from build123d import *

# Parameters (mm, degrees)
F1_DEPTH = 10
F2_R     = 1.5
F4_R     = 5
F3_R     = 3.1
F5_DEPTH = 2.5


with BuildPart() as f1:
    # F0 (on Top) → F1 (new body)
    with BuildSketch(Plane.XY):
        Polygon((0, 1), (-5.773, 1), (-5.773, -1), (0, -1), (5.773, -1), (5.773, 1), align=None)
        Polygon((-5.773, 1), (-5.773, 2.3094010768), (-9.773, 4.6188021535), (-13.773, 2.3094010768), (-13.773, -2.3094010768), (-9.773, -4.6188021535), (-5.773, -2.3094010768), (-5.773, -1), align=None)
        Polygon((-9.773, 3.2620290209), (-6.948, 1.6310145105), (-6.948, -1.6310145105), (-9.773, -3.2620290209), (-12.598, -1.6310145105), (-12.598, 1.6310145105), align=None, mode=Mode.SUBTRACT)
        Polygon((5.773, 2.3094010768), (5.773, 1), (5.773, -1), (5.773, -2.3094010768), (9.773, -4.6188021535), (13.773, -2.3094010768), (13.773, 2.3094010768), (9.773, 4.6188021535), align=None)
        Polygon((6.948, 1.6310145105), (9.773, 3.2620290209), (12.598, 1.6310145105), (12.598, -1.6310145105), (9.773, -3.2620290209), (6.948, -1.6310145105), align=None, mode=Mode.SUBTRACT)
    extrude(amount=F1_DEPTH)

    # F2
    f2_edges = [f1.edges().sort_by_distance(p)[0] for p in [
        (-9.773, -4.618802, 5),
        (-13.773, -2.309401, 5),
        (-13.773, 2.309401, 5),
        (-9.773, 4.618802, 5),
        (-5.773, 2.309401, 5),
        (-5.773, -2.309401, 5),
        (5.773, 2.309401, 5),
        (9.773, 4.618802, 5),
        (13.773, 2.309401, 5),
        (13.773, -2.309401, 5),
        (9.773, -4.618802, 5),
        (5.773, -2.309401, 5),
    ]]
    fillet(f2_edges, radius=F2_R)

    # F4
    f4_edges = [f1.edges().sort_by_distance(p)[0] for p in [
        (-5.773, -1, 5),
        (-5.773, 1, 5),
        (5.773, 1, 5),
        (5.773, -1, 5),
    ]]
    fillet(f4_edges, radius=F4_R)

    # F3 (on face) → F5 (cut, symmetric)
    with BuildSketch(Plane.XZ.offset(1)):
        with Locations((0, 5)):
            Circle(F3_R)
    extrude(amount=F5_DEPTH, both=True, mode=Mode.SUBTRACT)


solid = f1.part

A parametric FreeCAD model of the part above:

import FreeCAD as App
import Part
import Sketcher
Q = App.Units.Quantity


def edges_at(feature, points):
    """Names of the edges that pass closest to the given points."""
    edges = feature.Shape.Edges
    near = lambda p: min(range(len(edges)), key=lambda i: edges[i].distToShape(Part.Vertex(*p))[0])
    return sorted({f"Edge{near(p) + 1}" for p in points})

doc = App.newDocument("Part")
body = doc.addObject("PartDesign::Body", "Body")

# Sketch on XY plane
sketch1 = body.newObject("Sketcher::SketchObject", "Sketch")
sketch1.AttachmentSupport = (doc.getObject("XY_Plane"), [""])
sketch1.MapMode = "FlatFace"
sketch1.addGeometry(Part.LineSegment(App.Vector(-5.8, -1, 0), App.Vector(5.8, -1, 0)), False)
sketch1.addGeometry(Part.LineSegment(App.Vector(5.8, -1, 0), App.Vector(5.8, -2.3, 0)), False)
sketch1.addGeometry(Part.LineSegment(App.Vector(5.8, -2.3, 0), App.Vector(9.8, -4.6, 0)), False)
sketch1.addGeometry(Part.LineSegment(App.Vector(9.8, -4.6, 0), App.Vector(13.8, -2.3, 0)), False)
sketch1.addGeometry(Part.LineSegment(App.Vector(13.8, -2.3, 0), App.Vector(13.8, 2.3, 0)), False)
sketch1.addGeometry(Part.LineSegment(App.Vector(13.8, 2.3, 0), App.Vector(9.8, 4.6, 0)), False)
sketch1.addGeometry(Part.LineSegment(App.Vector(9.8, 4.6, 0), App.Vector(5.8, 2.3, 0)), False)
sketch1.addGeometry(Part.LineSegment(App.Vector(5.8, 2.3, 0), App.Vector(5.8, 1, 0)), False)
sketch1.addGeometry(Part.LineSegment(App.Vector(5.8, 1, 0), App.Vector(-5.8, 1, 0)), False)
sketch1.addGeometry(Part.LineSegment(App.Vector(-5.8, 1, 0), App.Vector(-5.8, 2.3, 0)), False)
sketch1.addGeometry(Part.LineSegment(App.Vector(-5.8, 2.3, 0), App.Vector(-9.8, 4.6, 0)), False)
sketch1.addGeometry(Part.LineSegment(App.Vector(-9.8, 4.6, 0), App.Vector(-13.8, 2.3, 0)), False)
sketch1.addGeometry(Part.LineSegment(App.Vector(-13.8, 2.3, 0), App.Vector(-13.8, -2.3, 0)), False)
sketch1.addGeometry(Part.LineSegment(App.Vector(-13.8, -2.3, 0), App.Vector(-9.8, -4.6, 0)), False)
sketch1.addGeometry(Part.LineSegment(App.Vector(-9.8, -4.6, 0), App.Vector(-5.8, -2.3, 0)), False)
sketch1.addGeometry(Part.LineSegment(App.Vector(-5.8, -2.3, 0), App.Vector(-5.8, -1, 0)), False)
sketch1.addGeometry(Part.LineSegment(App.Vector(-12.6, 1.6, 0), App.Vector(-9.8, 3.3, 0)), False)
sketch1.addGeometry(Part.LineSegment(App.Vector(-9.8, 3.3, 0), App.Vector(-6.9, 1.6, 0)), False)
sketch1.addGeometry(Part.LineSegment(App.Vector(-6.9, 1.6, 0), App.Vector(-6.9, -1.6, 0)), False)
sketch1.addGeometry(Part.LineSegment(App.Vector(-6.9, -1.6, 0), App.Vector(-9.8, -3.3, 0)), False)
sketch1.addGeometry(Part.LineSegment(App.Vector(-9.8, -3.3, 0), App.Vector(-12.6, -1.6, 0)), False)
sketch1.addGeometry(Part.LineSegment(App.Vector(-12.6, -1.6, 0), App.Vector(-12.6, 1.6, 0)), False)
sketch1.addGeometry(Part.LineSegment(App.Vector(6.9, -1.6, 0), App.Vector(6.9, 1.6, 0)), False)
sketch1.addGeometry(Part.LineSegment(App.Vector(6.9, 1.6, 0), App.Vector(9.8, 3.3, 0)), False)
sketch1.addGeometry(Part.LineSegment(App.Vector(9.8, 3.3, 0), App.Vector(12.6, 1.6, 0)), False)
sketch1.addGeometry(Part.LineSegment(App.Vector(12.6, 1.6, 0), App.Vector(12.6, -1.6, 0)), False)
sketch1.addGeometry(Part.LineSegment(App.Vector(12.6, -1.6, 0), App.Vector(9.8, -3.3, 0)), False)
sketch1.addGeometry(Part.LineSegment(App.Vector(9.8, -3.3, 0), App.Vector(6.9, -1.6, 0)), False)
sketch1.addConstraint(Sketcher.Constraint("Coincident", 0, 2, 1, 1))
sketch1.addConstraint(Sketcher.Constraint("Coincident", 1, 2, 2, 1))
sketch1.addConstraint(Sketcher.Constraint("Coincident", 2, 2, 3, 1))
sketch1.addConstraint(Sketcher.Constraint("Coincident", 3, 2, 4, 1))
sketch1.addConstraint(Sketcher.Constraint("Coincident", 4, 2, 5, 1))
sketch1.addConstraint(Sketcher.Constraint("Coincident", 5, 2, 6, 1))
sketch1.addConstraint(Sketcher.Constraint("Coincident", 6, 2, 7, 1))
sketch1.addConstraint(Sketcher.Constraint("Coincident", 7, 2, 8, 1))
sketch1.addConstraint(Sketcher.Constraint("Coincident", 8, 2, 9, 1))
sketch1.addConstraint(Sketcher.Constraint("Coincident", 9, 2, 10, 1))
sketch1.addConstraint(Sketcher.Constraint("Coincident", 10, 2, 11, 1))
sketch1.addConstraint(Sketcher.Constraint("Coincident", 11, 2, 12, 1))
sketch1.addConstraint(Sketcher.Constraint("Coincident", 12, 2, 13, 1))
sketch1.addConstraint(Sketcher.Constraint("Coincident", 13, 2, 14, 1))
sketch1.addConstraint(Sketcher.Constraint("Coincident", 14, 2, 15, 1))
sketch1.addConstraint(Sketcher.Constraint("Coincident", 15, 2, 0, 1))
sketch1.addConstraint(Sketcher.Constraint("Coincident", 16, 2, 17, 1))
sketch1.addConstraint(Sketcher.Constraint("Coincident", 17, 2, 18, 1))
sketch1.addConstraint(Sketcher.Constraint("Coincident", 18, 2, 19, 1))
sketch1.addConstraint(Sketcher.Constraint("Coincident", 19, 2, 20, 1))
sketch1.addConstraint(Sketcher.Constraint("Coincident", 20, 2, 21, 1))
sketch1.addConstraint(Sketcher.Constraint("Coincident", 21, 2, 16, 1))
sketch1.addConstraint(Sketcher.Constraint("Coincident", 22, 2, 23, 1))
sketch1.addConstraint(Sketcher.Constraint("Coincident", 23, 2, 24, 1))
sketch1.addConstraint(Sketcher.Constraint("Coincident", 24, 2, 25, 1))
sketch1.addConstraint(Sketcher.Constraint("Coincident", 25, 2, 26, 1))
sketch1.addConstraint(Sketcher.Constraint("Coincident", 26, 2, 27, 1))
sketch1.addConstraint(Sketcher.Constraint("Coincident", 27, 2, 22, 1))
sketch1.addConstraint(Sketcher.Constraint("Horizontal", 0))
sketch1.addConstraint(Sketcher.Constraint("Vertical", 1))
sketch1.addConstraint(Sketcher.Constraint("Vertical", 4))
sketch1.addConstraint(Sketcher.Constraint("Vertical", 7))
sketch1.addConstraint(Sketcher.Constraint("Horizontal", 8))
sketch1.addConstraint(Sketcher.Constraint("Vertical", 9))
sketch1.addConstraint(Sketcher.Constraint("Vertical", 12))
sketch1.addConstraint(Sketcher.Constraint("Vertical", 15))
sketch1.addConstraint(Sketcher.Constraint("Vertical", 18))
sketch1.addConstraint(Sketcher.Constraint("Vertical", 21))
sketch1.addConstraint(Sketcher.Constraint("Vertical", 22))
sketch1.addConstraint(Sketcher.Constraint("Vertical", 25))
sketch1.addConstraint(Sketcher.Constraint("Symmetric", 0, 2, 8, 2, -1, 1))
sketch1.addConstraint(Sketcher.Constraint("Symmetric", 2, 2, 10, 2, -1, 1))
sketch1.addConstraint(Sketcher.Constraint("Symmetric", 3, 2, 11, 2, -1, 1))
sketch1.addConstraint(Sketcher.Constraint("Symmetric", 5, 2, 13, 2, -1, 1))
sketch1.addConstraint(Sketcher.Constraint("Symmetric", 6, 2, 14, 2, -1, 1))
sketch1.addConstraint(Sketcher.Constraint("Symmetric", 18, 2, 22, 2, -1, 1))
sketch1.addConstraint(Sketcher.Constraint("Symmetric", 19, 2, 23, 2, -1, 1))
sketch1.addConstraint(Sketcher.Constraint("Symmetric", 20, 2, 24, 2, -1, 1))
sketch1.addConstraint(Sketcher.Constraint("Symmetric", 16, 2, 26, 2, -1, 1))
sketch1.addConstraint(Sketcher.Constraint("Symmetric", 6, 2, 9, 2, -2))
sketch1.addConstraint(Sketcher.Constraint("Symmetric", 5, 2, 10, 2, -2))
sketch1.addConstraint(Sketcher.Constraint("Symmetric", 16, 2, 23, 2, -2))
sketch1.addConstraint(Sketcher.Constraint("Parallel", 2, 5))
sketch1.addConstraint(Sketcher.Constraint("Parallel", 3, 6))
sketch1.addConstraint(Sketcher.Constraint("Parallel", 5, 10))
sketch1.addConstraint(Sketcher.Constraint("Parallel", 10, 13))
sketch1.addConstraint(Sketcher.Constraint("Parallel", 14, 16))
sketch1.addConstraint(Sketcher.Constraint("Parallel", 13, 17))
sketch1.addConstraint(Sketcher.Constraint("Parallel", 16, 19))
sketch1.addConstraint(Sketcher.Constraint("Parallel", 17, 20))
sketch1.addConstraint(Sketcher.Constraint("Parallel", 23, 26))
sketch1.addConstraint(Sketcher.Constraint("Parallel", 24, 27))
sketch1.addConstraint(Sketcher.Constraint("Horizontal", 1, 2, 3, 2))
sketch1.addConstraint(Sketcher.Constraint("Horizontal", 18, 2, 20, 2))
sketch1.addConstraint(Sketcher.Constraint("Vertical", 13, 2, 16, 2))
sketch1.addConstraint(Sketcher.Constraint("Angle", 2, Q("-30 deg")))
sketch1.addConstraint(Sketcher.Constraint("DistanceY", 0, 2, -1, 1, 1.0))
sketch1.addConstraint(Sketcher.Constraint("DistanceX", 1, 2, 2, 2, 4.0))
sketch1.addConstraint(Sketcher.Constraint("DistanceX", 0, 1, 0, 2, 11.546))
sketch1.addConstraint(Sketcher.Constraint("DistanceX", 20, 2, 18, 2, 5.65))
sketch1.addConstraint(Sketcher.Constraint("DistanceY", 1, 2, 1, 1, 1.309401))
sketch1.addConstraint(Sketcher.Constraint("DistanceY", 18, 2, 18, 1, 3.262029))
pad1 = body.newObject("PartDesign::Pad", "Pad")
pad1.Profile = sketch1
pad1.Length = 10
doc.recompute()

fillet = body.newObject("PartDesign::Fillet", "Fillet")
fillet.Base = (pad1, edges_at(pad1, [
    (-9.773, -4.619, 5),
    (-13.773, -2.309, 5),
    (-13.773, 2.309, 5),
    (-9.773, 4.619, 5),
    (-5.773, 2.309, 5),
    (-5.773, -2.309, 5),
    (5.773, 2.309, 5),
    (9.773, 4.619, 5),
    (13.773, 2.309, 5),
    (13.773, -2.309, 5),
    (9.773, -4.619, 5),
    (5.773, -2.309, 5),
]))
fillet.Radius = 1.5
doc.recompute()

fillet2 = body.newObject("PartDesign::Fillet", "Fillet001")
fillet2.Base = (fillet, edges_at(fillet, [
    (-5.773, -1, 5),
    (-5.773, 1, 5),
    (5.773, 1, 5),
    (5.773, -1, 5),
]))
fillet2.Radius = 5

# Sketch on XZ plane
sketch2 = body.newObject("Sketcher::SketchObject", "Sketch001")
sketch2.AttachmentSupport = (doc.getObject("XZ_Plane"), [""])
sketch2.MapMode = "FlatFace"
sketch2.AttachmentOffset = App.Placement(App.Vector(0, 0, 1), App.Rotation())
sketch2.addGeometry(Part.Circle(App.Vector(0, 5, 0), App.Vector(0, 0, 1), 3.1), False)
sketch2.addConstraint(Sketcher.Constraint("PointOnObject", 0, 3, -2))
sketch2.addConstraint(Sketcher.Constraint("Diameter", 0, 6.2))
sketch2.addConstraint(Sketcher.Constraint("DistanceY", -1, 1, 0, 3, 5.0))
pocket1 = body.newObject("PartDesign::Pocket", "Pocket")
pocket1.Profile = sketch2
pocket1.Length = 5
pocket1.Midplane = True

doc.recompute()
